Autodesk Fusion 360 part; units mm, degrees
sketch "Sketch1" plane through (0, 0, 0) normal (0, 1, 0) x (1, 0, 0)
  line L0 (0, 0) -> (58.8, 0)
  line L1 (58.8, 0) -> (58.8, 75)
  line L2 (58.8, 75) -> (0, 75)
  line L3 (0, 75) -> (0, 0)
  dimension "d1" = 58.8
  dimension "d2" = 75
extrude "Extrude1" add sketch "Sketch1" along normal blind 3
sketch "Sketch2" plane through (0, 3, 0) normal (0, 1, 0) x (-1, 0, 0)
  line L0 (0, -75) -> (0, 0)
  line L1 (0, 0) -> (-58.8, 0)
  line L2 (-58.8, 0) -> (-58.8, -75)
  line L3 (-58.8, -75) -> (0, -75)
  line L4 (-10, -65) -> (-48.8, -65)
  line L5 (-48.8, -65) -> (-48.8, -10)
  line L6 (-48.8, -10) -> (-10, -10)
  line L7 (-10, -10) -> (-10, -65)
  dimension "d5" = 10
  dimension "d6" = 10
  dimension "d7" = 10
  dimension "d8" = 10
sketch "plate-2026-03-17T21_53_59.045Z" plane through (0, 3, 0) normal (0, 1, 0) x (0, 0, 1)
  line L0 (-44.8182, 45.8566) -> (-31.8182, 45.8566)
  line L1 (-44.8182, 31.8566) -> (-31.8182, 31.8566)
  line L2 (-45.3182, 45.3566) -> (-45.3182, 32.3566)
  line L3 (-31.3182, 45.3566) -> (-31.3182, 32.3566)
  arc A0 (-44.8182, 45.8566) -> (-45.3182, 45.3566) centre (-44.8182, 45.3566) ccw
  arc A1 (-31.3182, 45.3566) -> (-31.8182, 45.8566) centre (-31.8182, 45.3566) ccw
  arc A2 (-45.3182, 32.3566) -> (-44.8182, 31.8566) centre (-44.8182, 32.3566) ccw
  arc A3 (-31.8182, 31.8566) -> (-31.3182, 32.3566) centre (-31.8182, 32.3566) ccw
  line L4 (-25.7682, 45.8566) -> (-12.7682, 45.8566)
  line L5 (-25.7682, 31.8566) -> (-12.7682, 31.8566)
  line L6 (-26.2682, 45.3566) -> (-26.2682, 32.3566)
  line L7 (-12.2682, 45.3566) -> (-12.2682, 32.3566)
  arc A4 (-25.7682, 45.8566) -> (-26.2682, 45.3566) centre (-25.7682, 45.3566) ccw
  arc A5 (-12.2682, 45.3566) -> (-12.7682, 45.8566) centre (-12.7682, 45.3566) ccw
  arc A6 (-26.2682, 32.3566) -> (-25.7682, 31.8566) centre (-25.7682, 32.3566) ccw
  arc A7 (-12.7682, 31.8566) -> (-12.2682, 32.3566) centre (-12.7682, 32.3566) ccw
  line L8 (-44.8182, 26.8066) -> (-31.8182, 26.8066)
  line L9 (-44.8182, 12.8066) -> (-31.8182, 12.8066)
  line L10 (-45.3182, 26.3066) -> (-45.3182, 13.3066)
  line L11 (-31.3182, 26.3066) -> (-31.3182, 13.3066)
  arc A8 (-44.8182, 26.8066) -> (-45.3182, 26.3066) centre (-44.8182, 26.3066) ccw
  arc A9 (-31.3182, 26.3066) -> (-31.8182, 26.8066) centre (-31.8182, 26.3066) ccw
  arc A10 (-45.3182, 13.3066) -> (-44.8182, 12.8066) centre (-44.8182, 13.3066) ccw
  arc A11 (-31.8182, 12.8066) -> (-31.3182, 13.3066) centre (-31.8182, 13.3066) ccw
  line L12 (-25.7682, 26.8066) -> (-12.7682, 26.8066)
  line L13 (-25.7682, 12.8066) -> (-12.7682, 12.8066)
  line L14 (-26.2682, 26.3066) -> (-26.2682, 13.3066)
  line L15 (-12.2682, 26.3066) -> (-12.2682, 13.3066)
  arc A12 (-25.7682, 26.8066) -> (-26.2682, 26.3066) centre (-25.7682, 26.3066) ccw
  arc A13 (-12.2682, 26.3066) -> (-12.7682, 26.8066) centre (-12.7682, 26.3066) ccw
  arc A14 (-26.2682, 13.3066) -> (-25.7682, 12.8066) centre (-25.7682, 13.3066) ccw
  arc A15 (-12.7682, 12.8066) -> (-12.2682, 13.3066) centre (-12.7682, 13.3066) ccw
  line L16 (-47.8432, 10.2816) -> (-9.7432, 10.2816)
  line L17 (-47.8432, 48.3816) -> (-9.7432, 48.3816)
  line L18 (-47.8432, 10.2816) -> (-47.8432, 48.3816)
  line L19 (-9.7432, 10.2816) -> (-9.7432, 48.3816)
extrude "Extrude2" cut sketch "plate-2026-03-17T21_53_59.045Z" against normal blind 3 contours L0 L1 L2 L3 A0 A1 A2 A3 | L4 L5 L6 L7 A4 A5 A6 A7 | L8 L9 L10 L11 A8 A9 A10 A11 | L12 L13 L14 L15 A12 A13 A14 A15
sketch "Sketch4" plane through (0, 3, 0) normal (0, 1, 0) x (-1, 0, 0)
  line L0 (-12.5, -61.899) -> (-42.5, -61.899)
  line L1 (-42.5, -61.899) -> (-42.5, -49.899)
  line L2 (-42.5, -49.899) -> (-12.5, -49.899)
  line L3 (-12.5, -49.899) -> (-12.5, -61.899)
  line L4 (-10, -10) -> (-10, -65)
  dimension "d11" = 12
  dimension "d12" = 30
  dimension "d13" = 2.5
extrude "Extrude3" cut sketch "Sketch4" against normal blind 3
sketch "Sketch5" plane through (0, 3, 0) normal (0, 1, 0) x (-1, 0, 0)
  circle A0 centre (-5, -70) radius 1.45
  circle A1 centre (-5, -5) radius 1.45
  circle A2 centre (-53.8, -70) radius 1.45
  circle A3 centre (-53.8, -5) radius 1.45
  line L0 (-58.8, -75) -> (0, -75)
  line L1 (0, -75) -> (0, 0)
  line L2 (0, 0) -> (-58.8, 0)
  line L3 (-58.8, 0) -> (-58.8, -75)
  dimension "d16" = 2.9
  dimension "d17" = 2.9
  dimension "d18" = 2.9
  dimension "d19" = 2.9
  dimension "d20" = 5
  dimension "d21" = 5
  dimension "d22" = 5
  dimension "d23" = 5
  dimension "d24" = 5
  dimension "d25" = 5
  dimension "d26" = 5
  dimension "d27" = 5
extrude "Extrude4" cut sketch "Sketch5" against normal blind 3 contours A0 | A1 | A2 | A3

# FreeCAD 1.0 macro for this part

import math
import FreeCAD as App
import Part
import Sketcher
Q = App.Units.Quantity


def add_polygon(sketch, points):
    """Adds a closed chain of lines whose ends are joined by coincident constraints."""
    first, n = sketch.GeometryCount, len(points)
    for a, b in zip(points, points[1:] + points[:1]):
        sketch.addGeometry(Part.LineSegment(App.Vector(*a, 0), App.Vector(*b, 0)), False)
    for i in range(n):
        sketch.addConstraint(Sketcher.Constraint("Coincident", first + i, 2, first + (i + 1) % n, 1))

doc = App.newDocument("Part")
body = doc.addObject("PartDesign::Body", "Body")

# Sketch on XZ plane
sketch1 = body.newObject("Sketcher::SketchObject", "Sketch")
sketch1.AttachmentSupport = (doc.getObject("XZ_Plane"), [""])
sketch1.MapMode = "FlatFace"
add_polygon(sketch1, [(0, -75), (0, 0), (58.8, 0), (58.8, -75)])  # lines 0-3
sketch1.addConstraint([
    Sketcher.Constraint("Vertical", 0),
    Sketcher.Constraint("Horizontal", 1),
    Sketcher.Constraint("Vertical", 2),
    Sketcher.Constraint("Horizontal", 3),
    Sketcher.Constraint("Coincident", 0, 2, -1, 1),
    Sketcher.Constraint("DistanceY", 0, 1, 0, 2, Q("75 mm")),
    Sketcher.Constraint("DistanceX", 1, 1, 1, 2, Q("58.8 mm")),
])
pad1 = body.newObject("PartDesign::Pad", "Pad")
pad1.Profile = sketch1
pad1.Length = 3
pad1.Reversed = True

# Sketch on XZ plane
sketch2 = body.newObject("Sketcher::SketchObject", "Sketch001")
sketch2.AttachmentSupport = (doc.getObject("XZ_Plane"), [""])
sketch2.MapMode = "FlatFace"
sketch2.AttachmentOffset = App.Placement(App.Vector(0, 0, -3), App.Rotation())
sketch2.addGeometry([
    Part.LineSegment(App.Vector(45.8566, -31.8182, 0), App.Vector(45.8566, -44.8182, 0)),  # 0
    Part.ArcOfCircle(Part.Circle(App.Vector(45.3566, -44.8182, 0), App.Vector(0, 0, 1), 0.5), math.radians(-90), math.radians(0)),  # 1
    Part.LineSegment(App.Vector(45.3566, -45.3182, 0), App.Vector(32.3566, -45.3182, 0)),  # 2
    Part.ArcOfCircle(Part.Circle(App.Vector(32.3566, -44.8182, 0), App.Vector(0, 0, 1), 0.5), math.radians(180), math.radians(270)),  # 3
    Part.LineSegment(App.Vector(31.8566, -44.8182, 0), App.Vector(31.8566, -31.8182, 0)),  # 4
    Part.ArcOfCircle(Part.Circle(App.Vector(32.3566, -31.8182, 0), App.Vector(0, 0, 1), 0.5), math.radians(90), math.radians(180)),  # 5
    Part.LineSegment(App.Vector(32.3566, -31.3182, 0), App.Vector(45.3566, -31.3182, 0)),  # 6
    Part.ArcOfCircle(Part.Circle(App.Vector(45.3566, -31.8182, 0), App.Vector(0, 0, 1), 0.5), math.radians(0), math.radians(90)),  # 7
    Part.LineSegment(App.Vector(45.8566, -12.7682, 0), App.Vector(45.8566, -25.7682, 0)),  # 8
    Part.ArcOfCircle(Part.Circle(App.Vector(45.3566, -25.7682, 0), App.Vector(0, 0, 1), 0.5), math.radians(-90), math.radians(0)),  # 9
    Part.LineSegment(App.Vector(45.3566, -26.2682, 0), App.Vector(32.3566, -26.2682, 0)),  # 10
    Part.ArcOfCircle(Part.Circle(App.Vector(32.3566, -25.7682, 0), App.Vector(0, 0, 1), 0.5), math.radians(180), math.radians(270)),  # 11
    Part.LineSegment(App.Vector(31.8566, -25.7682, 0), App.Vector(31.8566, -12.7682, 0)),  # 12
    Part.ArcOfCircle(Part.Circle(App.Vector(32.3566, -12.7682, 0), App.Vector(0, 0, 1), 0.5), math.radians(90), math.radians(180)),  # 13
    Part.LineSegment(App.Vector(32.3566, -12.2682, 0), App.Vector(45.3566, -12.2682, 0)),  # 14
    Part.ArcOfCircle(Part.Circle(App.Vector(45.3566, -12.7682, 0), App.Vector(0, 0, 1), 0.5), math.radians(0), math.radians(90)),  # 15
    Part.LineSegment(App.Vector(26.8066, -31.8182, 0), App.Vector(26.8066, -44.8182, 0)),  # 16
    Part.ArcOfCircle(Part.Circle(App.Vector(26.3066, -44.8182, 0), App.Vector(0, 0, 1), 0.5), math.radians(-90), math.radians(0)),  # 17
    Part.LineSegment(App.Vector(26.3066, -45.3182, 0), App.Vector(13.3066, -45.3182, 0)),  # 18
    Part.ArcOfCircle(Part.Circle(App.Vector(13.3066, -44.8182, 0), App.Vector(0, 0, 1), 0.5), math.radians(180), math.radians(270)),  # 19
    Part.LineSegment(App.Vector(12.8066, -44.8182, 0), App.Vector(12.8066, -31.8182, 0)),  # 20
    Part.ArcOfCircle(Part.Circle(App.Vector(13.3066, -31.8182, 0), App.Vector(0, 0, 1), 0.5), math.radians(90), math.radians(180)),  # 21
    Part.LineSegment(App.Vector(13.3066, -31.3182, 0), App.Vector(26.3066, -31.3182, 0)),  # 22
    Part.ArcOfCircle(Part.Circle(App.Vector(26.3066, -31.8182, 0), App.Vector(0, 0, 1), 0.5), math.radians(0), math.radians(90)),  # 23
    Part.LineSegment(App.Vector(26.8066, -12.7682, 0), App.Vector(26.8066, -25.7682, 0)),  # 24
    Part.ArcOfCircle(Part.Circle(App.Vector(26.3066, -25.7682, 0), App.Vector(0, 0, 1), 0.5), math.radians(-90), math.radians(0)),  # 25
    Part.LineSegment(App.Vector(26.3066, -26.2682, 0), App.Vector(13.3066, -26.2682, 0)),  # 26
    Part.ArcOfCircle(Part.Circle(App.Vector(13.3066, -25.7682, 0), App.Vector(0, 0, 1), 0.5), math.radians(180), math.radians(270)),  # 27
    Part.LineSegment(App.Vector(12.8066, -25.7682, 0), App.Vector(12.8066, -12.7682, 0)),  # 28
    Part.ArcOfCircle(Part.Circle(App.Vector(13.3066, -12.7682, 0), App.Vector(0, 0, 1), 0.5), math.radians(90), math.radians(180)),  # 29
    Part.LineSegment(App.Vector(13.3066, -12.2682, 0), App.Vector(26.3066, -12.2682, 0)),  # 30
    Part.ArcOfCircle(Part.Circle(App.Vector(26.3066, -12.7682, 0), App.Vector(0, 0, 1), 0.5), math.radians(0), math.radians(90)),  # 31
], False)
sketch2.addConstraint([
    Sketcher.Constraint("Tangent", 0, 2, 1, 2),
    Sketcher.Constraint("Tangent", 1, 1, 2, 1),
    Sketcher.Constraint("Tangent", 2, 2, 3, 2),
    Sketcher.Constraint("Tangent", 3, 1, 4, 1),
    Sketcher.Constraint("Tangent", 4, 2, 5, 2),
    Sketcher.Constraint("Tangent", 5, 1, 6, 1),
    Sketcher.Constraint("Tangent", 6, 2, 7, 2),
    Sketcher.Constraint("Tangent", 7, 1, 0, 1),
    Sketcher.Constraint("Tangent", 8, 2, 9, 2),
    Sketcher.Constraint("Tangent", 9, 1, 10, 1),
    Sketcher.Constraint("Tangent", 10, 2, 11, 2),
    Sketcher.Constraint("Tangent", 11, 1, 12, 1),
    Sketcher.Constraint("Tangent", 12, 2, 13, 2),
    Sketcher.Constraint("Tangent", 13, 1, 14, 1),
    Sketcher.Constraint("Tangent", 14, 2, 15, 2),
    Sketcher.Constraint("Tangent", 15, 1, 8, 1),
    Sketcher.Constraint("Tangent", 16, 2, 17, 2),
    Sketcher.Constraint("Tangent", 17, 1, 18, 1),
    Sketcher.Constraint("Tangent", 18, 2, 19, 2),
    Sketcher.Constraint("Tangent", 19, 1, 20, 1),
    Sketcher.Constraint("Tangent", 20, 2, 21, 2),
    Sketcher.Constraint("Tangent", 21, 1, 22, 1),
    Sketcher.Constraint("Tangent", 22, 2, 23, 2),
    Sketcher.Constraint("Tangent", 23, 1, 16, 1),
    Sketcher.Constraint("Tangent", 24, 2, 25, 2),
    Sketcher.Constraint("Tangent", 25, 1, 26, 1),
    Sketcher.Constraint("Tangent", 26, 2, 27, 2),
    Sketcher.Constraint("Tangent", 27, 1, 28, 1),
    Sketcher.Constraint("Tangent", 28, 2, 29, 2),
    Sketcher.Constraint("Tangent", 29, 1, 30, 1),
    Sketcher.Constraint("Tangent", 30, 2, 31, 2),
    Sketcher.Constraint("Tangent", 31, 1, 24, 1),
    Sketcher.Constraint("Vertical", 0),
    Sketcher.Constraint("Horizontal", 2),
    Sketcher.Constraint("Vertical", 4),
    Sketcher.Constraint("Horizontal", 6),
    Sketcher.Constraint("Vertical", 8),
    Sketcher.Constraint("Horizontal", 10),
    Sketcher.Constraint("Vertical", 12),
    Sketcher.Constraint("Horizontal", 14),
    Sketcher.Constraint("Vertical", 16),
    Sketcher.Constraint("Horizontal", 18),
    Sketcher.Constraint("Vertical", 20),
    Sketcher.Constraint("Horizontal", 22),
    Sketcher.Constraint("Vertical", 24),
    Sketcher.Constraint("Horizontal", 26),
    Sketcher.Constraint("Vertical", 28),
    Sketcher.Constraint("Horizontal", 30),
    Sketcher.Constraint("Equal", 1, 3),
    Sketcher.Constraint("Equal", 3, 5),
    Sketcher.Constraint("Equal", 5, 7),
    Sketcher.Constraint("Equal", 7, 9),
    Sketcher.Constraint("Equal", 9, 11),
    Sketcher.Constraint("Equal", 11, 13),
    Sketcher.Constraint("Equal", 13, 15),
    Sketcher.Constraint("Equal", 15, 17),
    Sketcher.Constraint("Equal", 17, 19),
    Sketcher.Constraint("Equal", 19, 21),
    Sketcher.Constraint("Equal", 21, 23),
    Sketcher.Constraint("Equal", 23, 25),
    Sketcher.Constraint("Equal", 25, 27),
    Sketcher.Constraint("Equal", 27, 29),
    Sketcher.Constraint("Equal", 29, 31),
    Sketcher.Constraint("Horizontal", 3, 3, 17, 3),
    Sketcher.Constraint("Horizontal", 7, 3, 21, 3),
    Sketcher.Constraint("Horizontal", 11, 3, 25, 3),
    Sketcher.Constraint("Horizontal", 15, 3, 29, 3),
    Sketcher.Constraint("Vertical", 7, 3, 9, 3),
    Sketcher.Constraint("Vertical", 5, 3, 11, 3),
    Sketcher.Constraint("Vertical", 23, 3, 25, 3),
    Sketcher.Constraint("Vertical", 21, 3, 27, 3),
    Sketcher.Constraint("Equal", 14, 18),
    Sketcher.Constraint("Equal", 30, 0),
    Sketcher.Constraint("Equal", 4, 8),
    Sketcher.Constraint("Radius", 1, Q("0.5 mm")),
    Sketcher.Constraint("DistanceX", 2, 2, 2, 1, Q("13 mm")),
    Sketcher.Constraint("DistanceY", 7, 3, 9, 3, Q("6.05 mm")),
    Sketcher.Constraint("DistanceX", 17, 3, 3, 3, Q("6.05 mm")),
    Sketcher.Constraint("DistanceX", -1, 1, 1, 3, Q("45.3566 mm")),
    Sketcher.Constraint("DistanceY", 1, 3, -1, 1, Q("44.8182 mm")),
])
pocket1 = body.newObject("PartDesign::Pocket", "Pocket")
pocket1.Profile = sketch2
pocket1.Length = 3
pocket1.Reversed = True

# Sketch on XZ plane
sketch3 = body.newObject("Sketcher::SketchObject", "Sketch002")
sketch3.AttachmentSupport = (doc.getObject("XZ_Plane"), [""])
sketch3.MapMode = "FlatFace"
sketch3.AttachmentOffset = App.Placement(App.Vector(0, 0, -3), App.Rotation())
add_polygon(sketch3, [(42.5, -61.899), (12.5, -61.899), (12.5, -49.899), (42.5, -49.899)])  # lines 0-3
sketch3.addConstraint([
    Sketcher.Constraint("Horizontal", 0),
    Sketcher.Constraint("Vertical", 1),
    Sketcher.Constraint("Horizontal", 2),
    Sketcher.Constraint("Vertical", 3),
    Sketcher.Constraint("DistanceX", 0, 2, 0, 1, Q("30 mm")),
    Sketcher.Constraint("DistanceY", 1, 1, 1, 2, Q("12 mm")),
    Sketcher.Constraint("DistanceX", -1, 1, 0, 2, Q("12.5 mm")),
    Sketcher.Constraint("DistanceY", 0, 2, -1, 1, Q("61.899 mm")),
])
pocket2 = body.newObject("PartDesign::Pocket", "Pocket001")
pocket2.Profile = sketch3
pocket2.Length = 3
pocket2.Reversed = True

# Sketch on XZ plane
sketch4 = body.newObject("Sketcher::SketchObject", "Sketch003")
sketch4.AttachmentSupport = (doc.getObject("XZ_Plane"), [""])
sketch4.MapMode = "FlatFace"
sketch4.AttachmentOffset = App.Placement(App.Vector(0, 0, -3), App.Rotation())
sketch4.addGeometry([
    Part.Circle(App.Vector(5, -70, 0), App.Vector(0, 0, 1), 1.45),
    Part.Circle(App.Vector(5, -5, 0), App.Vector(0, 0, 1), 1.45),
    Part.Circle(App.Vector(53.8, -70, 0), App.Vector(0, 0, 1), 1.45),
    Part.Circle(App.Vector(53.8, -5, 0), App.Vector(0, 0, 1), 1.45),
], False)
sketch4.addConstraint([
    Sketcher.Constraint("Equal", 0, 1),
    Sketcher.Constraint("Equal", 1, 2),
    Sketcher.Constraint("Equal", 2, 3),
    Sketcher.Constraint("Horizontal", 0, 3, 2, 3),
    Sketcher.Constraint("Horizontal", 1, 3, 3, 3),
    Sketcher.Constraint("Vertical", 0, 3, 1, 3),
    Sketcher.Constraint("Vertical", 2, 3, 3, 3),
    Sketcher.Constraint("Diameter", 0, Q("2.9 mm")),
    Sketcher.Constraint("DistanceX", -1, 1, 0, 3, Q("5 mm")),
    Sketcher.Constraint("DistanceY", 1, 3, -1, 1, Q("5 mm")),
    Sketcher.Constraint("DistanceY", 0, 3, -1, 1, Q("70 mm")),
    Sketcher.Constraint("DistanceX", -1, 1, 2, 3, Q("53.8 mm")),
])
pocket3 = body.newObject("PartDesign::Pocket", "Pocket002")
pocket3.Profile = sketch4
pocket3.Length = 3
pocket3.Reversed = True

doc.recompute()
